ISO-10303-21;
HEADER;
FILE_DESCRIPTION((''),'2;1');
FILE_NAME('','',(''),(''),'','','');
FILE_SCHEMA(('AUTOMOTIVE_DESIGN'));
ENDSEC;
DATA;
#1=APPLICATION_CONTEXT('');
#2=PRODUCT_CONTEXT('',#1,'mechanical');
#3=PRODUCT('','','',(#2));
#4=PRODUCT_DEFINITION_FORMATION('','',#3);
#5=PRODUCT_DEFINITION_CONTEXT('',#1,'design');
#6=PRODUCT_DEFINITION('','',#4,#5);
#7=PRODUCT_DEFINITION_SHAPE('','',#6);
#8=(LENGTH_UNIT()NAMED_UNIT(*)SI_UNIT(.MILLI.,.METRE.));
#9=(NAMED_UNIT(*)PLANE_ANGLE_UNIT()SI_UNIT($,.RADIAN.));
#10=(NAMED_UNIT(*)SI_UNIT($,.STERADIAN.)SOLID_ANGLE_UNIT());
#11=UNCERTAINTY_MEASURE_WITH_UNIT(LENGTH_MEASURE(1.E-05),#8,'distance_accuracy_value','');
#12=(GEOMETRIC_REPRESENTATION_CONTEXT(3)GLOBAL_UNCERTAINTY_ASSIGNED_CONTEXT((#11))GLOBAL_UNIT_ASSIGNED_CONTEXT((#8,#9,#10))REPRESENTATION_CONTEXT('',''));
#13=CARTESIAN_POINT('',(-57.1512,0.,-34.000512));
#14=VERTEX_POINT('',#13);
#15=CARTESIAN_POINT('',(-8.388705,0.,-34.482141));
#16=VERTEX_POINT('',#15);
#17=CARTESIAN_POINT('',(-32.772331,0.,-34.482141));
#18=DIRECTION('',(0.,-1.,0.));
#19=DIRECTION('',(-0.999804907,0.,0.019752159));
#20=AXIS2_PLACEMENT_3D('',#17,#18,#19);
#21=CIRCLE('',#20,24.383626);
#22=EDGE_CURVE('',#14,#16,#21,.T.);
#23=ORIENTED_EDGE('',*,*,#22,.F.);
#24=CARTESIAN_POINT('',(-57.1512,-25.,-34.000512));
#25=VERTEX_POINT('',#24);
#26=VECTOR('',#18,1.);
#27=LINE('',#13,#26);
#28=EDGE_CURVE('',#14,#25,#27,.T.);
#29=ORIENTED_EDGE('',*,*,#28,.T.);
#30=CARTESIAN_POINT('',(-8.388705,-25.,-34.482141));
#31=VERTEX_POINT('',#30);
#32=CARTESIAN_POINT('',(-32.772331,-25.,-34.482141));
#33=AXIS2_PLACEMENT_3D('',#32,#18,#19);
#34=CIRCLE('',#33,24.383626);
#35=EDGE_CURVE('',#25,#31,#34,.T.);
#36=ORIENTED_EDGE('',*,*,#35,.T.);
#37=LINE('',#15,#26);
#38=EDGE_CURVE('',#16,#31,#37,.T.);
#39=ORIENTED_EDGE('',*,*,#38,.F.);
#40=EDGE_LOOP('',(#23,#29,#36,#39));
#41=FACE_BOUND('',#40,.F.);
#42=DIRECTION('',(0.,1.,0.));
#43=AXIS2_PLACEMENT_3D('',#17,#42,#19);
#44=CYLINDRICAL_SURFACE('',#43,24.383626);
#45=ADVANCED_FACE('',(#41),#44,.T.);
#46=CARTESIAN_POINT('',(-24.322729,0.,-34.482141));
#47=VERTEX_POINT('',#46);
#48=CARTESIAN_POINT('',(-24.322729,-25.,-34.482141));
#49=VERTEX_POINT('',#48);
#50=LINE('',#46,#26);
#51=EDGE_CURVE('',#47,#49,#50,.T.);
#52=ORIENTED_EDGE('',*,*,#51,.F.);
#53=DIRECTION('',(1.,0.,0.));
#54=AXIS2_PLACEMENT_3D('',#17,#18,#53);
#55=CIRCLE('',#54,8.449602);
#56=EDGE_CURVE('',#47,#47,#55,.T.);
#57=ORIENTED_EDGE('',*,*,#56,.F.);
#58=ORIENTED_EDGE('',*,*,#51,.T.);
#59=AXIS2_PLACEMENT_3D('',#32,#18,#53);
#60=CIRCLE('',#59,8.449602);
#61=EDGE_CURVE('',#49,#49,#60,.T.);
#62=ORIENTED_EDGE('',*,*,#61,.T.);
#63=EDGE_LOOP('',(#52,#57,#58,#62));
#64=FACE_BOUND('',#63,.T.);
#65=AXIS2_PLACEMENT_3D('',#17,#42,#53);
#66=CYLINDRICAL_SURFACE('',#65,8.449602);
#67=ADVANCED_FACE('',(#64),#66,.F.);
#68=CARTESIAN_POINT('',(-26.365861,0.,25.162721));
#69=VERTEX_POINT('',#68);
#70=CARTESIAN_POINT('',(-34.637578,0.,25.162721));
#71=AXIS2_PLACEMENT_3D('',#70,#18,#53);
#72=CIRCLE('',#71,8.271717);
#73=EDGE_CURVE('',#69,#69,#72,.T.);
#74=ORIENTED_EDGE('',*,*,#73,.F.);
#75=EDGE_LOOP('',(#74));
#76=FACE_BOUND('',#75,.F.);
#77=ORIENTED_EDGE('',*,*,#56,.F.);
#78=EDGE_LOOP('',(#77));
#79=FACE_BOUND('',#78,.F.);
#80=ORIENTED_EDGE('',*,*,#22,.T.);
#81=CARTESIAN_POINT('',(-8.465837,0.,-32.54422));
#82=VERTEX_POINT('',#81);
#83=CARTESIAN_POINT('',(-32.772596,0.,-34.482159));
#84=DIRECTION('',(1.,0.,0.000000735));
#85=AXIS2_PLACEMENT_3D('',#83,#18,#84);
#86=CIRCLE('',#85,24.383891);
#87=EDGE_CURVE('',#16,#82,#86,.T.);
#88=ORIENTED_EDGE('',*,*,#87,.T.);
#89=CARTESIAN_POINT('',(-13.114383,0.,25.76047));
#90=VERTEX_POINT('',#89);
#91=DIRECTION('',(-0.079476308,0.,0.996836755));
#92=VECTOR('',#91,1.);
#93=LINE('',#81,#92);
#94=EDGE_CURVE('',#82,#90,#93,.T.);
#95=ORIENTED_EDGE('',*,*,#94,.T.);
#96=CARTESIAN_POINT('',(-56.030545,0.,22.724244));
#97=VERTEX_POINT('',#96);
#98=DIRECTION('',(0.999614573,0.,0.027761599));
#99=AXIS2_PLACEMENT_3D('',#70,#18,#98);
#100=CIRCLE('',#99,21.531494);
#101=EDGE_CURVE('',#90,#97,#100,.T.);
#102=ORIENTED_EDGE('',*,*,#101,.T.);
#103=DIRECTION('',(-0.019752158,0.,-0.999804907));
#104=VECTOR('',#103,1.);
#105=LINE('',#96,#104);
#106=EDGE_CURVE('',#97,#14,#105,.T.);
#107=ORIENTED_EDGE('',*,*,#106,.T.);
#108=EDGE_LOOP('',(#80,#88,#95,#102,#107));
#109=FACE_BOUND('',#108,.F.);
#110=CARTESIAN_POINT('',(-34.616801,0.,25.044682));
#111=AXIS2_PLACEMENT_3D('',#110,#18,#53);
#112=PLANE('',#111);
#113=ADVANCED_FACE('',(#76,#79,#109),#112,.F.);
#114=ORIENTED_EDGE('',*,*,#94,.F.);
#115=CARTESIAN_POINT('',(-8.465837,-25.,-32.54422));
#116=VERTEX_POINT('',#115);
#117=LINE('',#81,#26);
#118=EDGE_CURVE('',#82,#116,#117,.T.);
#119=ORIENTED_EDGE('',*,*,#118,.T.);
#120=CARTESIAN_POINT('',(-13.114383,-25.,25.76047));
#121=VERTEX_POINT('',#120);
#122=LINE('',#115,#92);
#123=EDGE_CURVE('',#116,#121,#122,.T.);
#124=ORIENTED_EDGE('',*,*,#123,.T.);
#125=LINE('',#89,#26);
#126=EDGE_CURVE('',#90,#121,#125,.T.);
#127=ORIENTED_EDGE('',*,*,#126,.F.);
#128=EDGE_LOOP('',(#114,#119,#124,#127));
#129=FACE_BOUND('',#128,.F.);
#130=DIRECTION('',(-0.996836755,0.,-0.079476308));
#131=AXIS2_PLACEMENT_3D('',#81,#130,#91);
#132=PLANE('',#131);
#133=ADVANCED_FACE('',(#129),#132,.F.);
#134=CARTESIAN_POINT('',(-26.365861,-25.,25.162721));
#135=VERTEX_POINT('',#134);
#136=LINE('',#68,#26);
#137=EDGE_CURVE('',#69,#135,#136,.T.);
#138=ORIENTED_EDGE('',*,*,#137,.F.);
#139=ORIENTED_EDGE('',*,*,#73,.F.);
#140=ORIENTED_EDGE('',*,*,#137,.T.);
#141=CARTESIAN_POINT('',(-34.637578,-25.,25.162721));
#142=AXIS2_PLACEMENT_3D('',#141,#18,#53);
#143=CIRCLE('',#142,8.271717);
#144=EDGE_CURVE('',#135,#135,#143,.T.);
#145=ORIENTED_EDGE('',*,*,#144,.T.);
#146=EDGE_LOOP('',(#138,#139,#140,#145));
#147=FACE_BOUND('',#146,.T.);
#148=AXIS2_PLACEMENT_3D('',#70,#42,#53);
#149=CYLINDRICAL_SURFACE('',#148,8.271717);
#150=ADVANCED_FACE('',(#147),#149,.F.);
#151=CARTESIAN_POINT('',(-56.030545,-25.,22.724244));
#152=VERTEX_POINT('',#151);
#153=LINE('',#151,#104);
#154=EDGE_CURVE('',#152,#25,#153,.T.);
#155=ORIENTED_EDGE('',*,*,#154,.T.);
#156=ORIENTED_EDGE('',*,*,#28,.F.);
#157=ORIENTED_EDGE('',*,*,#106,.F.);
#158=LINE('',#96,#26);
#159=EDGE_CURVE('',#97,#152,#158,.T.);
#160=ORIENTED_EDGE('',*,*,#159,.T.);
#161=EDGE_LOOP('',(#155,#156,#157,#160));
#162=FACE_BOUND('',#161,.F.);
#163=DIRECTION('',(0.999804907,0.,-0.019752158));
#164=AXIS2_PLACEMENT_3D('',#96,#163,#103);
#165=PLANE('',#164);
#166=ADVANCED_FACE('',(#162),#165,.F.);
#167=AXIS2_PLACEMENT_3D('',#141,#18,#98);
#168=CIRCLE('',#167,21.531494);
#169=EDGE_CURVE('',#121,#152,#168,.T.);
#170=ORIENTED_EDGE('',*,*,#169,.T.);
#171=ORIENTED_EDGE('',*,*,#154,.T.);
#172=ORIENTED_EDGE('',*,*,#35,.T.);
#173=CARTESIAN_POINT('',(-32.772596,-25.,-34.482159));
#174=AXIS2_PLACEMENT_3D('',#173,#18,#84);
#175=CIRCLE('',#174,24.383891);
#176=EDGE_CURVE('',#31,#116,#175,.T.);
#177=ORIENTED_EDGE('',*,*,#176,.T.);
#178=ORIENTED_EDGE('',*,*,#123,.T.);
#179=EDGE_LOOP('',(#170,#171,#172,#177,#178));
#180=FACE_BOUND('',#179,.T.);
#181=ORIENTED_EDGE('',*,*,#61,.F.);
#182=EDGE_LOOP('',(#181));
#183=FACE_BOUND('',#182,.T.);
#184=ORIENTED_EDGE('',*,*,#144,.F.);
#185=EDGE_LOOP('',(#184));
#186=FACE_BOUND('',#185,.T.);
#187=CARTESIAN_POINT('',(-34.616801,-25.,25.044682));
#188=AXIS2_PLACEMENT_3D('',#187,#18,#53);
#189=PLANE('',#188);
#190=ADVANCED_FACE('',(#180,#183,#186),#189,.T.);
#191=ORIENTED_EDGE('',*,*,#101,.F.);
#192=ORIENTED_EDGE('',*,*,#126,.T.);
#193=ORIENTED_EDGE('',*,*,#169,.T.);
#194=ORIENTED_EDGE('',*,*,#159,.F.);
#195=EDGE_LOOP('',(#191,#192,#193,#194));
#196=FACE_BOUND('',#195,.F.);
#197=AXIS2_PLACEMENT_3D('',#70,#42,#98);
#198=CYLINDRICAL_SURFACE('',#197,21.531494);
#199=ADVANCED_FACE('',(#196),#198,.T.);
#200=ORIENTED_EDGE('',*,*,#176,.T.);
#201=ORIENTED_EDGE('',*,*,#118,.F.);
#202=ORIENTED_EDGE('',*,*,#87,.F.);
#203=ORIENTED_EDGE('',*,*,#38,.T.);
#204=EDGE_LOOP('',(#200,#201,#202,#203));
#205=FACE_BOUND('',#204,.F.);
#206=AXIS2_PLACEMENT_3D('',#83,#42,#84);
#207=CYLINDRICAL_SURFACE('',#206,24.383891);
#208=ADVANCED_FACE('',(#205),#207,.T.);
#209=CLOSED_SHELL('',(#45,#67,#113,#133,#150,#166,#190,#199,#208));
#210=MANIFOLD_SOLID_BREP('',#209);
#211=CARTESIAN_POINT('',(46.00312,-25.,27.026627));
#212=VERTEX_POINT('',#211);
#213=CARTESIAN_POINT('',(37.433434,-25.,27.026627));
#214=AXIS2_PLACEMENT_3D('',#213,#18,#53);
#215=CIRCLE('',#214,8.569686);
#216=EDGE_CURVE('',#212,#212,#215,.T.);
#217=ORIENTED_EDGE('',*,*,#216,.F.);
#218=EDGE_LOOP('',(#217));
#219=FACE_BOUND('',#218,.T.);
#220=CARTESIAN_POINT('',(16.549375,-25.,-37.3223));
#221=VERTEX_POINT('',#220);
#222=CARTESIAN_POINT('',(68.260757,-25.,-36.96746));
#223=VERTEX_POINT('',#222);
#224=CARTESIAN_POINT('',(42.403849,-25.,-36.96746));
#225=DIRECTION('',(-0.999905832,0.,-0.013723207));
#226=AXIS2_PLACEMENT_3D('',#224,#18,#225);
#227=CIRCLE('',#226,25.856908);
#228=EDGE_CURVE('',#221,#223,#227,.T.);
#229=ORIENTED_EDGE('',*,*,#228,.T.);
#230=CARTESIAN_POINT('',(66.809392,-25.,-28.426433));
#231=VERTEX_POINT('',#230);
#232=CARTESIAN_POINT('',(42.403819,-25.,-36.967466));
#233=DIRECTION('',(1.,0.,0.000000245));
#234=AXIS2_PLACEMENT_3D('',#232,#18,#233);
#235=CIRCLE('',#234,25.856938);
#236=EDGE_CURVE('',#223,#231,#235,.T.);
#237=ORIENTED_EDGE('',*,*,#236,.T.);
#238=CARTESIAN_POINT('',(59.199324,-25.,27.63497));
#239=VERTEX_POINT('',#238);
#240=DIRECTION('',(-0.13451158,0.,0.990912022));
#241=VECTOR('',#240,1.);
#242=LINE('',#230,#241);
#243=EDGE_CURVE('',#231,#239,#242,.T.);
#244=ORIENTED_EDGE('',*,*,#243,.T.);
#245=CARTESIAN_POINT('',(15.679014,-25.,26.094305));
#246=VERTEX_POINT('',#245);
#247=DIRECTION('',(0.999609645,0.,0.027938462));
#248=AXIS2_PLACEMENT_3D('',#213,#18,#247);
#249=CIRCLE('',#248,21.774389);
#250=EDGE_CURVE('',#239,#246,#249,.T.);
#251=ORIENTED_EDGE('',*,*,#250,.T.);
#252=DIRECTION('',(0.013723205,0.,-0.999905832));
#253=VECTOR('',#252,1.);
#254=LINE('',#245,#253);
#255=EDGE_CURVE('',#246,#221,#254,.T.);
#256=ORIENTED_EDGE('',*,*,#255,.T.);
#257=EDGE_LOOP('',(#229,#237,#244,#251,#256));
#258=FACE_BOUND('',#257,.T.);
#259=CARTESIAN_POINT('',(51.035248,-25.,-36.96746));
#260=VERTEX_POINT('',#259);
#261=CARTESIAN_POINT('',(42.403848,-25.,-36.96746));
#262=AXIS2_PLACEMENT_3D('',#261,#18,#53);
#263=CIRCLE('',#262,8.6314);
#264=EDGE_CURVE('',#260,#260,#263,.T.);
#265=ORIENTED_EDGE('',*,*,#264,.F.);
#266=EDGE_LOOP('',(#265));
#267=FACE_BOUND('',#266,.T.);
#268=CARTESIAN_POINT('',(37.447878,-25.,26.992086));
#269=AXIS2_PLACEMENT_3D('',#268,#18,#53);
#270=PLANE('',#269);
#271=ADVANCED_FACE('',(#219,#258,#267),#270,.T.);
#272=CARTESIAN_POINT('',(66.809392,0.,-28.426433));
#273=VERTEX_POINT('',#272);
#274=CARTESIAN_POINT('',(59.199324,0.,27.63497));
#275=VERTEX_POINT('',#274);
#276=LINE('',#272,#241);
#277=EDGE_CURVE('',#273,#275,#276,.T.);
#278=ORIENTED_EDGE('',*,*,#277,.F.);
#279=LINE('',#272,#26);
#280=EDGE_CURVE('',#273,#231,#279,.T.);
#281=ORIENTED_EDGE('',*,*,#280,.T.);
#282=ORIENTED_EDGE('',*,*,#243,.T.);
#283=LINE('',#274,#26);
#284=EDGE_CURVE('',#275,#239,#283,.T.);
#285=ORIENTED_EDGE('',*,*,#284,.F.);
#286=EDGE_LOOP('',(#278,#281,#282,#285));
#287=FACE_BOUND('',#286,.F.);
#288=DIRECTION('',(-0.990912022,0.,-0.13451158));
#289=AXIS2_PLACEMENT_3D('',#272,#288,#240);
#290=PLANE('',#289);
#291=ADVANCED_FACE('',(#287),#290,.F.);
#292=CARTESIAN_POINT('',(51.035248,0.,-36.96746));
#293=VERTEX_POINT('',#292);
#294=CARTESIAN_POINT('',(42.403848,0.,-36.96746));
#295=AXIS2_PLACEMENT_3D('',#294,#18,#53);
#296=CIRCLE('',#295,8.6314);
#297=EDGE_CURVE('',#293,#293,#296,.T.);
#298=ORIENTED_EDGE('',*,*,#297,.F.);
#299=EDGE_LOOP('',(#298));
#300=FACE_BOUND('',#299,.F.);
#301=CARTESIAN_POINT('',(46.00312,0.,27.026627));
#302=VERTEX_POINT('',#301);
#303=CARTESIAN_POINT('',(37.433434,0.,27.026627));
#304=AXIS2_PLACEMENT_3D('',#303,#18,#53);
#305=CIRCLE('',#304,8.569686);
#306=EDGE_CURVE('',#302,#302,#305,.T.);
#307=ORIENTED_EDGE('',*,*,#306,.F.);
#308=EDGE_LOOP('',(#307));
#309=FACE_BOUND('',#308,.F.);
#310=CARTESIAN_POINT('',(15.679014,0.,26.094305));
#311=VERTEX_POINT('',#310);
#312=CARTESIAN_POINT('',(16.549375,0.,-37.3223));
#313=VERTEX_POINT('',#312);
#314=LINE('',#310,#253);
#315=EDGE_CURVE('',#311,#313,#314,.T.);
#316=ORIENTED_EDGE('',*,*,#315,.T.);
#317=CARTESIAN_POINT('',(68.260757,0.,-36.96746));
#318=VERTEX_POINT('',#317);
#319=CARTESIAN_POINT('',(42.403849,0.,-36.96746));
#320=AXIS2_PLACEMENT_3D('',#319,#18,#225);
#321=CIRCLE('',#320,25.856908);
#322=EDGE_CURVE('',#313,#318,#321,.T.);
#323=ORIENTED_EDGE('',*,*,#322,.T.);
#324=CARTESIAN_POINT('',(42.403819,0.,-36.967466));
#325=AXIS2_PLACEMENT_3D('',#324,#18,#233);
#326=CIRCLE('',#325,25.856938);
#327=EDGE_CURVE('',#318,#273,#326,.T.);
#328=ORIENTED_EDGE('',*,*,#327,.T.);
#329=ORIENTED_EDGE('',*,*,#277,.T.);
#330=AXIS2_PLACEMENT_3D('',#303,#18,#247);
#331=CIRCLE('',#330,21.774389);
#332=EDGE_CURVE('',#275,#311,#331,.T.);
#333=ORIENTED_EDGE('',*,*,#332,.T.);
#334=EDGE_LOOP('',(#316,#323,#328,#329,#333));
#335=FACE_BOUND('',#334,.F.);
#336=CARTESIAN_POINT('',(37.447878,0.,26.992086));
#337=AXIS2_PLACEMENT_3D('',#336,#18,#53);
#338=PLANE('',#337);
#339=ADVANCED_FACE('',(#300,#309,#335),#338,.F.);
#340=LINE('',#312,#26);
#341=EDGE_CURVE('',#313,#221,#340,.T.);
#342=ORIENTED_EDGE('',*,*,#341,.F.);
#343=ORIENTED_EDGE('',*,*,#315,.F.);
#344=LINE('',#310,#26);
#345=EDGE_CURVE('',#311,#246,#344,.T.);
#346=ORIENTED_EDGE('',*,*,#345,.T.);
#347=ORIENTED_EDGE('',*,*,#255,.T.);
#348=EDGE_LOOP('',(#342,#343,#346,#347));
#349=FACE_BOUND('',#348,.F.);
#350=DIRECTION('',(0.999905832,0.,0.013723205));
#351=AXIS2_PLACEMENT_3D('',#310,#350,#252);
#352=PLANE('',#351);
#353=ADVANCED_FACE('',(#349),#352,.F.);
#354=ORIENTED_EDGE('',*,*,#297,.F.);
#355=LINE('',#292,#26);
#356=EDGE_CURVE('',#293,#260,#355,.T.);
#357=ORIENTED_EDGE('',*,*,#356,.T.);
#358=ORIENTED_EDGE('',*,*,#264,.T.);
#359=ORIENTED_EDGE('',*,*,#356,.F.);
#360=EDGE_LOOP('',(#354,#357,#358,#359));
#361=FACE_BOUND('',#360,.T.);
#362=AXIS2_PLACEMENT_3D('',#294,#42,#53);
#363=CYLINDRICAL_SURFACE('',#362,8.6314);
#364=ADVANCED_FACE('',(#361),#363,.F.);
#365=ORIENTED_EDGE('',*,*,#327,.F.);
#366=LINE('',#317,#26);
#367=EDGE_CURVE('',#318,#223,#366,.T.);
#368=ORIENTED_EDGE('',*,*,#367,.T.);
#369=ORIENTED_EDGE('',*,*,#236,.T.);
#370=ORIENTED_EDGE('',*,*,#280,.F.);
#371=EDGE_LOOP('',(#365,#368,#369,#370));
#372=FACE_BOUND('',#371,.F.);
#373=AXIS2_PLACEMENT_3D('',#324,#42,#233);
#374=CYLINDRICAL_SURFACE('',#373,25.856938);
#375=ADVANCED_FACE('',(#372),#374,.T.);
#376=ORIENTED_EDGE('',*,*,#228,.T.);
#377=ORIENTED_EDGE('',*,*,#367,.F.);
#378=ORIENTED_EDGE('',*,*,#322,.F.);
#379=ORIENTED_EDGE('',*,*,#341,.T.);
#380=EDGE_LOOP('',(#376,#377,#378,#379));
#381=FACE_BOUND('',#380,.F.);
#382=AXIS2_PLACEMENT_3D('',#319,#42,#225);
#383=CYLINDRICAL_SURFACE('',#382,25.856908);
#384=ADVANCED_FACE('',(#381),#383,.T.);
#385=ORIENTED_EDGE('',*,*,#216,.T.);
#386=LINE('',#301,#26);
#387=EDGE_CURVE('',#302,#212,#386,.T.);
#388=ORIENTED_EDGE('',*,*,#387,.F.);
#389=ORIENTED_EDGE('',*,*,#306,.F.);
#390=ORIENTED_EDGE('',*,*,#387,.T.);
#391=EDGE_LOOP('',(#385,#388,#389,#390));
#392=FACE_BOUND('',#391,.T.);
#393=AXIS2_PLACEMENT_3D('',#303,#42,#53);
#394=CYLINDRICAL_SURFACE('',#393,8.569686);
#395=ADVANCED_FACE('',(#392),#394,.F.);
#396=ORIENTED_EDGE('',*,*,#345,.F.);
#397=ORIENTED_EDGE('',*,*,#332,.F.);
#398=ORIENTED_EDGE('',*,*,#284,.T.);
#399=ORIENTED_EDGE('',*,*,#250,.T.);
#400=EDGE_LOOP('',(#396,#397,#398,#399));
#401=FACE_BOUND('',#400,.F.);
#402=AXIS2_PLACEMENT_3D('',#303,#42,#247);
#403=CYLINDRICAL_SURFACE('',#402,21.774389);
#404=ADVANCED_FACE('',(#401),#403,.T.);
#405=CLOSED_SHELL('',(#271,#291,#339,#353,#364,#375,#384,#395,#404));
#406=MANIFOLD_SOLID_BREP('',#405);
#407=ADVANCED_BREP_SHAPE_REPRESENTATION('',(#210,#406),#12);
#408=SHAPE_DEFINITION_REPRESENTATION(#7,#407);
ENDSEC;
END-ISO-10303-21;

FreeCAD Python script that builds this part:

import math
import FreeCAD as App
import Part
import Sketcher

V = App.Vector
Q = App.Units.Quantity

doc = App.newDocument("Part")
body = doc.addObject("PartDesign::Body", "Body")
body.AllowCompound = True

# Sketch on XZ plane
sketch1 = body.newObject("Sketcher::SketchObject", "Sketch")
sketch1.AttachmentSupport = (doc.getObject("XZ_Plane"), [""])
sketch1.MapMode = "FlatFace"
sketch1.addGeometry([
    Part.ArcOfCircle(Part.Circle(V(37.433434, 27.026627, 0), V(0, 0, 1), 21.774389), math.radians(1.600964), math.radians(182.454005)),  # 0
    Part.LineSegment(V(15.679014, 26.094305, 0), V(16.549375, -37.3223, 0)),  # 1
    Part.ArcOfCircle(Part.Circle(V(42.403849, -36.96746, 0), V(0, 0, 1), 25.856908), math.radians(-179.213693), math.radians(0.000001)),  # 2
    Part.ArcOfCircle(Part.Circle(V(42.403819, -36.967466, 0), V(0, 0, 1), 25.856938), math.radians(0.000014), math.radians(19.288128)),  # 3
    Part.LineSegment(V(66.809392, -28.426433, 0), V(59.199324, 27.63497, 0)),  # 4
    Part.Circle(V(42.403848, -36.96746, 0), V(0, 0, 1), 8.6314),  # 5
    Part.Circle(V(37.433434, 27.026627, 0), V(0, 0, 1), 8.569686),  # 6
    Part.ArcOfCircle(Part.Circle(V(-34.637578, 25.162721, 0), V(0, 0, 1), 21.531494), math.radians(1.590827), math.radians(186.502793)),  # 7
    Part.LineSegment(V(-56.030545, 22.724244, 0), V(-57.1512, -34.000512, 0)),  # 8
    Part.ArcOfCircle(Part.Circle(V(-32.772331, -34.482141, 0), V(0, 0, 1), 24.383626), math.radians(178.868211), math.radians(360.000001)),  # 9
    Part.ArcOfCircle(Part.Circle(V(-32.772596, -34.482159, 0), V(0, 0, 1), 24.383891), math.radians(0.000042), math.radians(4.558458)),  # 10
    Part.LineSegment(V(-8.465837, -32.54422, 0), V(-13.114383, 25.76047, 0)),  # 11
    Part.Circle(V(-32.772331, -34.482141, 0), V(0, 0, 1), 8.449602),  # 12
    Part.Circle(V(-34.637578, 25.162721, 0), V(0, 0, 1), 8.271717),  # 13
], False)
sketch1.addConstraint([
    Sketcher.Constraint("Coincident", 0, 2, 1, 1),
    Sketcher.Constraint("Coincident", 1, 2, 2, 1),
    Sketcher.Constraint("Coincident", 2, 2, 3, 1),
    Sketcher.Constraint("Coincident", 3, 2, 4, 1),
    Sketcher.Constraint("Coincident", 4, 2, 0, 1),
    Sketcher.Constraint("Coincident", 7, 2, 8, 1),
    Sketcher.Constraint("Coincident", 8, 2, 9, 1),
    Sketcher.Constraint("Coincident", 9, 2, 10, 1),
    Sketcher.Constraint("Coincident", 10, 2, 11, 1),
    Sketcher.Constraint("Coincident", 11, 2, 7, 1),
    Sketcher.Constraint("Coincident", 5, 3, 2, 3),
    Sketcher.Constraint("Coincident", 6, 3, 0, 3),
    Sketcher.Constraint("Coincident", 12, 3, 9, 3),
    Sketcher.Constraint("Coincident", 13, 3, 7, 3),
    Sketcher.Constraint("Diameter", 5, Q("17.2628 mm")),
    Sketcher.Constraint("Radius", 0, Q("21.774389 mm")),
    Sketcher.Constraint("Radius", 2, Q("25.856908 mm")),
    Sketcher.Constraint("Radius", 3, Q("25.856938 mm")),
    Sketcher.Constraint("Radius", 10, Q("24.383891 mm")),
    Sketcher.Constraint("Diameter", 6, Q("17.139372 mm")),
    Sketcher.Constraint("Diameter", 12, Q("16.899204 mm")),
    Sketcher.Constraint("Diameter", 13, Q("16.543434 mm")),
    Sketcher.Constraint("Radius", 7, Q("21.531494 mm")),
    Sketcher.Constraint("Radius", 9, Q("24.383626 mm")),
    Sketcher.Constraint("DistanceY", 1, 2, -1, 1, Q("37.3223 mm")),
    Sketcher.Constraint("DistanceX", 8, 2, -1, 1, Q("57.1512 mm")),
    Sketcher.Constraint("DistanceY", 5, 3, 10, 3, Q("2.485301 mm")),
    Sketcher.Constraint("Distance", 4, Q("56.57556 mm")),
    Sketcher.Constraint("DistanceX", -1, 1, 2, 3, Q("42.403849 mm")),
    Sketcher.Constraint("DistanceY", 2, 3, -1, 1, Q("36.96746 mm")),
    Sketcher.Constraint("DistanceY", -1, 1, 7, 3, Q("25.162721 mm")),
    Sketcher.Constraint("DistanceX", 9, 3, -1, 1, Q("32.772331 mm")),
    Sketcher.Constraint("DistanceY", 9, 3, -1, 1, Q("34.482141 mm")),
    Sketcher.Constraint("DistanceY", 2, 2, -1, 1, Q("36.96746 mm")),
    Sketcher.Constraint("DistanceY", -1, 1, 4, 2, Q("27.63497 mm")),
    Sketcher.Constraint("DistanceY", 9, 2, -1, 1, Q("34.482141 mm")),
    Sketcher.Constraint("DistanceY", 10, 2, -1, 1, Q("32.54422 mm")),
    Sketcher.Constraint("DistanceY", -1, 1, 11, 2, Q("25.76047 mm")),
    Sketcher.Constraint("DistanceX", 7, 3, 6, 3, Q("72.071012 mm")),
    Sketcher.Constraint("DistanceY", 9, 3, 6, 3, Q("61.508768 mm")),
    Sketcher.Constraint("DistanceX", 7, 3, 10, 3, Q("1.864981 mm")),
    Sketcher.Constraint("DistanceX", 0, 2, 6, 3, Q("21.75442 mm")),
    Sketcher.Constraint("DistanceY", 3, 3, 0, 2, Q("63.061771 mm")),
    Sketcher.Constraint("DistanceX", 7, 2, 10, 3, Q("23.257949 mm")),
])
pad1 = body.newObject("PartDesign::Pad", "Pad")
pad1.Profile = sketch1
pad1.Length = 25

doc.recompute()
